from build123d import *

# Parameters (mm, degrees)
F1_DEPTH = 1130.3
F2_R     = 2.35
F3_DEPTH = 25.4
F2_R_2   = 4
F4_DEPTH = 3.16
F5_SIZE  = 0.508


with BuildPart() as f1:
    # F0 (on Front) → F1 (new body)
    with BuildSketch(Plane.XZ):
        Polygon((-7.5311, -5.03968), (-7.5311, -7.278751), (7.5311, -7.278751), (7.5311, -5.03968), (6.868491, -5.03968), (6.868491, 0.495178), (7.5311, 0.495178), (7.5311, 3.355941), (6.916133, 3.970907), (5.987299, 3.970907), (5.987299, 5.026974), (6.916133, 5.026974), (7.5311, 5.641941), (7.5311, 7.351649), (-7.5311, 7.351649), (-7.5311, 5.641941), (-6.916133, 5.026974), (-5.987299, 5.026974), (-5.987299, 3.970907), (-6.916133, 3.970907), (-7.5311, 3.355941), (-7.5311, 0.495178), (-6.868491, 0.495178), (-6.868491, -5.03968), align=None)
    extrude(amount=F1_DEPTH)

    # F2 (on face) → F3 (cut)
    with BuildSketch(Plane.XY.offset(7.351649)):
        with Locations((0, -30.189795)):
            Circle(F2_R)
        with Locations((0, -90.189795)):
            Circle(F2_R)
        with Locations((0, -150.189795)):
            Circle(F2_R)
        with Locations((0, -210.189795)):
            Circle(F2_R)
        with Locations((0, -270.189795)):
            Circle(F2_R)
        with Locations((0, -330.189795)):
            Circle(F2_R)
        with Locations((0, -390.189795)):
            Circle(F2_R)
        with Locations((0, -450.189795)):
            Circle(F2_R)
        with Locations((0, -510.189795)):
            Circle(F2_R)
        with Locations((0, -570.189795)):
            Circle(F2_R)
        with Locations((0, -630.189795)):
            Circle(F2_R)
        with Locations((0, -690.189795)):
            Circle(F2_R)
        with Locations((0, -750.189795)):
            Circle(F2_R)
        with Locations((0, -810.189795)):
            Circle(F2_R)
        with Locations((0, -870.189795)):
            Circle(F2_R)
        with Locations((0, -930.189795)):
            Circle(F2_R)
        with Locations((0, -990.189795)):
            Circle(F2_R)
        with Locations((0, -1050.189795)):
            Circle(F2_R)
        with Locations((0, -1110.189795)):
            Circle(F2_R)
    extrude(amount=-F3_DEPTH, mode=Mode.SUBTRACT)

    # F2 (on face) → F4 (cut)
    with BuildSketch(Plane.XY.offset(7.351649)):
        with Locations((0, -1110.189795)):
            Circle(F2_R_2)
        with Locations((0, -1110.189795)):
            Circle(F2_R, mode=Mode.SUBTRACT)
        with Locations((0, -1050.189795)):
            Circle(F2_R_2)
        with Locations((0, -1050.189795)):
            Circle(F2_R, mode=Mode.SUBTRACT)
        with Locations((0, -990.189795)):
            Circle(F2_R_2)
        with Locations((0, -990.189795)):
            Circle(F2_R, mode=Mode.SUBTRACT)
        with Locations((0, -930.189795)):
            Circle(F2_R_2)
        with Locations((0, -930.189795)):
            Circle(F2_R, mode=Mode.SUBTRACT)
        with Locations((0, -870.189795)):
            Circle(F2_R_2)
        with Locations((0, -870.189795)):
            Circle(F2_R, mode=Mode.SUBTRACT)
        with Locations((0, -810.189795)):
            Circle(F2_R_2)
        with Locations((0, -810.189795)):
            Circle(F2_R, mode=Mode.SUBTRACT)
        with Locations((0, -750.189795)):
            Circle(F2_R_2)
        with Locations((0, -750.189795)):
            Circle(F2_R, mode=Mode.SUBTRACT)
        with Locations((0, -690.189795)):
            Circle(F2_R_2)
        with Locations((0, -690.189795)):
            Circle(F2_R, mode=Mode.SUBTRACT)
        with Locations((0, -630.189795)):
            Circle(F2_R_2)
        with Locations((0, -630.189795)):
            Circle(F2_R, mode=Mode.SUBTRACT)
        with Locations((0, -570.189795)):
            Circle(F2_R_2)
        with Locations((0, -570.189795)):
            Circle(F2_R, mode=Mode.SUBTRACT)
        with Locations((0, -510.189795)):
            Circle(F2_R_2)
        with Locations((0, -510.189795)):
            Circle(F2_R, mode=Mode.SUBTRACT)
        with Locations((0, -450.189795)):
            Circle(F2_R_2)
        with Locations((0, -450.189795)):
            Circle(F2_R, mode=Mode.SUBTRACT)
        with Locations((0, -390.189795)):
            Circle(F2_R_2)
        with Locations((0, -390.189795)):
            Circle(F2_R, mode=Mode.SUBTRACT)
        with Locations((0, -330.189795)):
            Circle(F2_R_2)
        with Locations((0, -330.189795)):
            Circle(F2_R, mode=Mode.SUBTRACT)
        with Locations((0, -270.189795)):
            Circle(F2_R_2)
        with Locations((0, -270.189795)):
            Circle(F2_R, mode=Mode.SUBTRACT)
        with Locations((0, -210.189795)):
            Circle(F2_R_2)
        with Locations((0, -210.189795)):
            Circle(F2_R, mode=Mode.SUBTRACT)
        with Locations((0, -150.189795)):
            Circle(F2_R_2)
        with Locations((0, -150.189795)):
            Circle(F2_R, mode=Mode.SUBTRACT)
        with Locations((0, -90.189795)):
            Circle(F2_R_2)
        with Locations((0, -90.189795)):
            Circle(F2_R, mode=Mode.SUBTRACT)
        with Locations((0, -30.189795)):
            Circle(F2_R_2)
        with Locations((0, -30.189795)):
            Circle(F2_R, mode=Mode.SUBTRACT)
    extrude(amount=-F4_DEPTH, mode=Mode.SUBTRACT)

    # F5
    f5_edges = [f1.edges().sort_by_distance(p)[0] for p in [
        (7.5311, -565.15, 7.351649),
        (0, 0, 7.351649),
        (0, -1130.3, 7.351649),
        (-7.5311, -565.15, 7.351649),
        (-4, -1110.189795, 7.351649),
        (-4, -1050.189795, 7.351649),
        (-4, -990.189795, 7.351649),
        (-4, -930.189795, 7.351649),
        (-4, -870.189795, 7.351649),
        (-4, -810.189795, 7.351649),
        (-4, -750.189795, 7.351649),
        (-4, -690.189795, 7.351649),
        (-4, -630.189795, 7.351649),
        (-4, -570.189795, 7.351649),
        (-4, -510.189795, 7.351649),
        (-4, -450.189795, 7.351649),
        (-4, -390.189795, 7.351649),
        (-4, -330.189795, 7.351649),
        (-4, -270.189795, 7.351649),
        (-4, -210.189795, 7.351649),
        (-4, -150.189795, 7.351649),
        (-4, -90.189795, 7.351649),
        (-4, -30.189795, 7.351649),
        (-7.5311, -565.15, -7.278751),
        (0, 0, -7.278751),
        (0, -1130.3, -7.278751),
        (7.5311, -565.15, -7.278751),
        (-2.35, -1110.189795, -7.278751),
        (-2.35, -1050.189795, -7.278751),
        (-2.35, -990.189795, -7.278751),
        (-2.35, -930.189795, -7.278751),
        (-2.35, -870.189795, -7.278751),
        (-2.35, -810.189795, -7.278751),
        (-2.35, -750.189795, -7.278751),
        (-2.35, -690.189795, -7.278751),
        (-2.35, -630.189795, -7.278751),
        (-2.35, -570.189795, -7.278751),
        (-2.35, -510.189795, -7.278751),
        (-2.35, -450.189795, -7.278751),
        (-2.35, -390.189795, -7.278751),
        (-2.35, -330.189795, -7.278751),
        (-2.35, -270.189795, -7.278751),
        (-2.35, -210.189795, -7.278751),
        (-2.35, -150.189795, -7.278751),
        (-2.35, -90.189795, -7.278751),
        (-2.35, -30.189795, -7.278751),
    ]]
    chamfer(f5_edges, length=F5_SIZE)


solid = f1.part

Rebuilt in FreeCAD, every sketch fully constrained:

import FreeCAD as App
import Part
import Sketcher
Q = App.Units.Quantity


def edges_at(feature, points):
    """Names of the edges that pass closest to the given points."""
    edges = feature.Shape.Edges
    near = lambda p: min(range(len(edges)), key=lambda i: edges[i].distToShape(Part.Vertex(*p))[0])
    return sorted({f"Edge{near(p) + 1}" for p in points})

doc = App.newDocument("Part")
body = doc.addObject("PartDesign::Body", "Body")

sketch1 = body.newObject("Sketcher::SketchObject", "Sketch")
sketch1.AttachmentSupport = (doc.getObject("XZ_Plane"), [""])
sketch1.MapMode = "FlatFace"
sketch1.addGeometry([
    Part.LineSegment(App.Vector(-7.5311, -5.03968, 0), App.Vector(-7.5311, -7.278751, 0)),
    Part.LineSegment(App.Vector(-7.5311, -7.278751, 0), App.Vector(7.5311, -7.278751, 0)),
    Part.LineSegment(App.Vector(7.5311, -7.278751, 0), App.Vector(7.5311, -5.03968, 0)),
    Part.LineSegment(App.Vector(7.5311, -5.03968, 0), App.Vector(6.868491, -5.03968, 0)),
    Part.LineSegment(App.Vector(6.868491, -5.03968, 0), App.Vector(6.868491, 0.495178, 0)),
    Part.LineSegment(App.Vector(6.868491, 0.495178, 0), App.Vector(7.5311, 0.495178, 0)),
    Part.LineSegment(App.Vector(7.5311, 0.495178, 0), App.Vector(7.5311, 3.355941, 0)),
    Part.LineSegment(App.Vector(7.5311, 3.355941, 0), App.Vector(6.916133, 3.970907, 0)),
    Part.LineSegment(App.Vector(6.916133, 3.970907, 0), App.Vector(5.987299, 3.970907, 0)),
    Part.LineSegment(App.Vector(5.987299, 3.970907, 0), App.Vector(5.987299, 5.026974, 0)),
    Part.LineSegment(App.Vector(5.987299, 5.026974, 0), App.Vector(6.916133, 5.026974, 0)),
    Part.LineSegment(App.Vector(6.916133, 5.026974, 0), App.Vector(7.5311, 5.641941, 0)),
    Part.LineSegment(App.Vector(7.5311, 5.641941, 0), App.Vector(7.5311, 7.351649, 0)),
    Part.LineSegment(App.Vector(7.5311, 7.351649, 0), App.Vector(-7.5311, 7.351649, 0)),
    Part.LineSegment(App.Vector(-7.5311, 7.351649, 0), App.Vector(-7.5311, 5.641941, 0)),
    Part.LineSegment(App.Vector(-7.5311, 5.641941, 0), App.Vector(-6.916133, 5.026974, 0)),
    Part.LineSegment(App.Vector(-6.916133, 5.026974, 0), App.Vector(-5.987299, 5.026974, 0)),
    Part.LineSegment(App.Vector(-5.987299, 5.026974, 0), App.Vector(-5.987299, 3.970907, 0)),
    Part.LineSegment(App.Vector(-5.987299, 3.970907, 0), App.Vector(-6.916133, 3.970907, 0)),
    Part.LineSegment(App.Vector(-6.916133, 3.970907, 0), App.Vector(-7.5311, 3.355941, 0)),
    Part.LineSegment(App.Vector(-7.5311, 3.355941, 0), App.Vector(-7.5311, 0.495178, 0)),
    Part.LineSegment(App.Vector(-7.5311, 0.495178, 0), App.Vector(-6.868491, 0.495178, 0)),
    Part.LineSegment(App.Vector(-6.868491, 0.495178, 0), App.Vector(-6.868491, -5.03968, 0)),
    Part.LineSegment(App.Vector(-6.868491, -5.03968, 0), App.Vector(-7.5311, -5.03968, 0)),
], False)
sketch1.addConstraint([
    Sketcher.Constraint("Coincident", 0, 2, 1, 1),
    Sketcher.Constraint("Coincident", 1, 2, 2, 1),
    Sketcher.Constraint("Coincident", 2, 2, 3, 1),
    Sketcher.Constraint("Coincident", 3, 2, 4, 1),
    Sketcher.Constraint("Coincident", 4, 2, 5, 1),
    Sketcher.Constraint("Coincident", 5, 2, 6, 1),
    Sketcher.Constraint("Coincident", 6, 2, 7, 1),
    Sketcher.Constraint("Coincident", 7, 2, 8, 1),
    Sketcher.Constraint("Coincident", 8, 2, 9, 1),
    Sketcher.Constraint("Coincident", 9, 2, 10, 1),
    Sketcher.Constraint("Coincident", 10, 2, 11, 1),
    Sketcher.Constraint("Coincident", 11, 2, 12, 1),
    Sketcher.Constraint("Coincident", 12, 2, 13, 1),
    Sketcher.Constraint("Coincident", 13, 2, 14, 1),
    Sketcher.Constraint("Coincident", 14, 2, 15, 1),
    Sketcher.Constraint("Coincident", 15, 2, 16, 1),
    Sketcher.Constraint("Coincident", 16, 2, 17, 1),
    Sketcher.Constraint("Coincident", 17, 2, 18, 1),
    Sketcher.Constraint("Coincident", 18, 2, 19, 1),
    Sketcher.Constraint("Coincident", 19, 2, 20, 1),
    Sketcher.Constraint("Coincident", 20, 2, 21, 1),
    Sketcher.Constraint("Coincident", 21, 2, 22, 1),
    Sketcher.Constraint("Coincident", 22, 2, 23, 1),
    Sketcher.Constraint("Coincident", 23, 2, 0, 1),
    Sketcher.Constraint("Vertical", 0),
    Sketcher.Constraint("Horizontal", 1),
    Sketcher.Constraint("Vertical", 2),
    Sketcher.Constraint("Horizontal", 3),
    Sketcher.Constraint("Vertical", 4),
    Sketcher.Constraint("Horizontal", 5),
    Sketcher.Constraint("Vertical", 6),
    Sketcher.Constraint("Horizontal", 8),
    Sketcher.Constraint("Vertical", 9),
    Sketcher.Constraint("Horizontal", 10),
    Sketcher.Constraint("Vertical", 12),
    Sketcher.Constraint("Horizontal", 13),
    Sketcher.Constraint("Vertical", 14),
    Sketcher.Constraint("Horizontal", 16),
    Sketcher.Constraint("Vertical", 17),
    Sketcher.Constraint("Horizontal", 18),
    Sketcher.Constraint("Vertical", 20),
    Sketcher.Constraint("Horizontal", 21),
    Sketcher.Constraint("Vertical", 22),
    Sketcher.Constraint("Horizontal", 23),
    Sketcher.Constraint("Symmetric", 11, 2, 14, 2, -2),
    Sketcher.Constraint("Symmetric", 10, 2, 15, 2, -2),
    Sketcher.Constraint("Symmetric", 8, 2, 17, 2, -2),
    Sketcher.Constraint("Symmetric", 6, 2, 19, 2, -2),
    Sketcher.Constraint("Symmetric", 4, 2, 21, 2, -2),
    Sketcher.Constraint("Symmetric", 2, 2, 23, 2, -2),
    Sketcher.Constraint("Perpendicular", 7, 11),
    Sketcher.Constraint("Perpendicular", 11, 15),
    Sketcher.Constraint("Perpendicular", 15, 19),
    Sketcher.Constraint("Vertical", 2, 2, 5, 2),
    Sketcher.Constraint("Vertical", 7, 2, 10, 2),
    Sketcher.Constraint("Vertical", 6, 2, 11, 2),
    Sketcher.Constraint("DistanceX", 1, 1, 1, 2, Q("0.593 in")),
    Sketcher.Constraint("DistanceY", 6, 2, 11, 2, Q("0.09 in")),
    Sketcher.Constraint("DistanceY", 0, 2, 13, 2, Q("0.576 in")),
    Sketcher.Constraint("DistanceY", 7, 2, 12, 2, Q("0.1331001 in")),
    Sketcher.Constraint("DistanceX", 3, 2, 3, 1, Q("0.662609 mm")),
    Sketcher.Constraint("DistanceY", 0, 2, 0, 1, Q("2.239071 mm")),
    Sketcher.Constraint("DistanceX", -1, 1, 8, 2, Q("5.987299 mm")),
    Sketcher.Constraint("DistanceX", 8, 2, 8, 1, Q("0.928834 mm")),
    Sketcher.Constraint("DistanceY", 4, 1, 4, 2, Q("5.534858 mm")),
    Sketcher.Constraint("DistanceY", 0, 2, -1, 1, Q("7.278751 mm")),
])
pad1 = body.newObject("PartDesign::Pad", "Pad")
pad1.Profile = sketch1
pad1.Length = Q("44.5 in")

sketch2 = body.newObject("Sketcher::SketchObject", "Sketch001")
sketch2.AttachmentSupport = (doc.getObject("XY_Plane"), [""])
sketch2.MapMode = "FlatFace"
sketch2.AttachmentOffset = App.Placement(App.Vector(0, 0, 7.351649), App.Rotation())
sketch2.addGeometry([
    Part.Circle(App.Vector(0, -30.189795, 0), App.Vector(0, 0, 1), 2.35),
    Part.Circle(App.Vector(0, -90.189795, 0), App.Vector(0, 0, 1), 2.35),
    Part.Circle(App.Vector(0, -150.189795, 0), App.Vector(0, 0, 1), 2.35),
    Part.Circle(App.Vector(0, -210.189795, 0), App.Vector(0, 0, 1), 2.35),
    Part.Circle(App.Vector(0, -270.189795, 0), App.Vector(0, 0, 1), 2.35),
    Part.Circle(App.Vector(0, -330.189795, 0), App.Vector(0, 0, 1), 2.35),
    Part.Circle(App.Vector(0, -390.189795, 0), App.Vector(0, 0, 1), 2.35),
    Part.Circle(App.Vector(0, -450.189795, 0), App.Vector(0, 0, 1), 2.35),
    Part.Circle(App.Vector(0, -510.189795, 0), App.Vector(0, 0, 1), 2.35),
    Part.Circle(App.Vector(0, -570.189795, 0), App.Vector(0, 0, 1), 2.35),
    Part.Circle(App.Vector(0, -630.189795, 0), App.Vector(0, 0, 1), 2.35),
    Part.Circle(App.Vector(0, -690.189795, 0), App.Vector(0, 0, 1), 2.35),
    Part.Circle(App.Vector(0, -750.189795, 0), App.Vector(0, 0, 1), 2.35),
    Part.Circle(App.Vector(0, -810.189795, 0), App.Vector(0, 0, 1), 2.35),
    Part.Circle(App.Vector(0, -870.189795, 0), App.Vector(0, 0, 1), 2.35),
    Part.Circle(App.Vector(0, -930.189795, 0), App.Vector(0, 0, 1), 2.35),
    Part.Circle(App.Vector(0, -990.189795, 0), App.Vector(0, 0, 1), 2.35),
    Part.Circle(App.Vector(0, -1050.189795, 0), App.Vector(0, 0, 1), 2.35),
    Part.Circle(App.Vector(0, -1110.189795, 0), App.Vector(0, 0, 1), 2.35),
], False)
sketch2.addConstraint([
    Sketcher.Constraint("Equal", 0, 1),
    Sketcher.Constraint("Equal", 1, 2),
    Sketcher.Constraint("Equal", 2, 3),
    Sketcher.Constraint("Equal", 3, 4),
    Sketcher.Constraint("Equal", 4, 5),
    Sketcher.Constraint("Equal", 5, 6),
    Sketcher.Constraint("Equal", 6, 7),
    Sketcher.Constraint("Equal", 7, 8),
    Sketcher.Constraint("Equal", 8, 9),
    Sketcher.Constraint("Equal", 9, 10),
    Sketcher.Constraint("Equal", 10, 11),
    Sketcher.Constraint("Equal", 11, 12),
    Sketcher.Constraint("Equal", 12, 13),
    Sketcher.Constraint("Equal", 13, 14),
    Sketcher.Constraint("Equal", 14, 15),
    Sketcher.Constraint("Equal", 15, 16),
    Sketcher.Constraint("Equal", 16, 17),
    Sketcher.Constraint("Equal", 17, 18),
    Sketcher.Constraint("PointOnObject", 0, 3, -2),
    Sketcher.Constraint("PointOnObject", 1, 3, -2),
    Sketcher.Constraint("PointOnObject", 2, 3, -2),
    Sketcher.Constraint("PointOnObject", 3, 3, -2),
    Sketcher.Constraint("PointOnObject", 4, 3, -2),
    Sketcher.Constraint("PointOnObject", 5, 3, -2),
    Sketcher.Constraint("PointOnObject", 6, 3, -2),
    Sketcher.Constraint("PointOnObject", 7, 3, -2),
    Sketcher.Constraint("PointOnObject", 8, 3, -2),
    Sketcher.Constraint("PointOnObject", 9, 3, -2),
    Sketcher.Constraint("PointOnObject", 10, 3, -2),
    Sketcher.Constraint("PointOnObject", 11, 3, -2),
    Sketcher.Constraint("PointOnObject", 12, 3, -2),
    Sketcher.Constraint("PointOnObject", 13, 3, -2),
    Sketcher.Constraint("PointOnObject", 14, 3, -2),
    Sketcher.Constraint("PointOnObject", 15, 3, -2),
    Sketcher.Constraint("PointOnObject", 16, 3, -2),
    Sketcher.Constraint("PointOnObject", 17, 3, -2),
    Sketcher.Constraint("PointOnObject", 18, 3, -2),
    Sketcher.Constraint("Diameter", 0, Q("4.7 mm")),
    Sketcher.Constraint("DistanceY", 1, 3, 0, 3, Q("60 mm")),
    Sketcher.Constraint("DistanceY", 2, 3, 1, 3, Q("60 mm")),
    Sketcher.Constraint("DistanceY", 3, 3, 2, 3, Q("60 mm")),
    Sketcher.Constraint("DistanceY", 4, 3, 3, 3, Q("60 mm")),
    Sketcher.Constraint("DistanceY", 5, 3, 4, 3, Q("60 mm")),
    Sketcher.Constraint("DistanceY", 6, 3, 5, 3, Q("60 mm")),
    Sketcher.Constraint("DistanceY", 7, 3, 6, 3, Q("60 mm")),
    Sketcher.Constraint("DistanceY", 8, 3, 7, 3, Q("60 mm")),
    Sketcher.Constraint("DistanceY", 9, 3, 8, 3, Q("60 mm")),
    Sketcher.Constraint("DistanceY", 10, 3, 9, 3, Q("60 mm")),
    Sketcher.Constraint("DistanceY", 11, 3, 10, 3, Q("60 mm")),
    Sketcher.Constraint("DistanceY", 12, 3, 11, 3, Q("60 mm")),
    Sketcher.Constraint("DistanceY", 13, 3, 12, 3, Q("60 mm")),
    Sketcher.Constraint("DistanceY", 14, 3, 13, 3, Q("60 mm")),
    Sketcher.Constraint("DistanceY", 15, 3, 14, 3, Q("60 mm")),
    Sketcher.Constraint("DistanceY", 16, 3, 15, 3, Q("60 mm")),
    Sketcher.Constraint("DistanceY", 17, 3, 16, 3, Q("60 mm")),
    Sketcher.Constraint("DistanceY", 18, 3, 17, 3, Q("60 mm")),
    Sketcher.Constraint("DistanceY", 0, 3, -1, 1, Q("30.189795 mm")),
])
pocket1 = body.newObject("PartDesign::Pocket", "Pocket")
pocket1.Profile = sketch2
pocket1.Length = Q("1 in")

sketch3 = body.newObject("Sketcher::SketchObject", "Sketch002")
sketch3.AttachmentSupport = (doc.getObject("XY_Plane"), [""])
sketch3.MapMode = "FlatFace"
sketch3.AttachmentOffset = App.Placement(App.Vector(0, 0, 7.351649), App.Rotation())
sketch3.addGeometry([
    Part.Circle(App.Vector(0, -1110.189795, 0), App.Vector(0, 0, 1), 4),
    Part.Circle(App.Vector(0, -1110.189795, 0), App.Vector(0, 0, 1), 2.35),
    Part.Circle(App.Vector(0, -1050.189795, 0), App.Vector(0, 0, 1), 4),
    Part.Circle(App.Vector(0, -1050.189795, 0), App.Vector(0, 0, 1), 2.35),
    Part.Circle(App.Vector(0, -990.189795, 0), App.Vector(0, 0, 1), 4),
    Part.Circle(App.Vector(0, -990.189795, 0), App.Vector(0, 0, 1), 2.35),
    Part.Circle(App.Vector(0, -930.189795, 0), App.Vector(0, 0, 1), 4),
    Part.Circle(App.Vector(0, -930.189795, 0), App.Vector(0, 0, 1), 2.35),
    Part.Circle(App.Vector(0, -870.189795, 0), App.Vector(0, 0, 1), 4),
    Part.Circle(App.Vector(0, -870.189795, 0), App.Vector(0, 0, 1), 2.35),
    Part.Circle(App.Vector(0, -810.189795, 0), App.Vector(0, 0, 1), 4),
    Part.Circle(App.Vector(0, -810.189795, 0), App.Vector(0, 0, 1), 2.35),
    Part.Circle(App.Vector(0, -750.189795, 0), App.Vector(0, 0, 1), 4),
    Part.Circle(App.Vector(0, -750.189795, 0), App.Vector(0, 0, 1), 2.35),
    Part.Circle(App.Vector(0, -690.189795, 0), App.Vector(0, 0, 1), 4),
    Part.Circle(App.Vector(0, -690.189795, 0), App.Vector(0, 0, 1), 2.35),
    Part.Circle(App.Vector(0, -630.189795, 0), App.Vector(0, 0, 1), 4),
    Part.Circle(App.Vector(0, -630.189795, 0), App.Vector(0, 0, 1), 2.35),
    Part.Circle(App.Vector(0, -570.189795, 0), App.Vector(0, 0, 1), 4),
    Part.Circle(App.Vector(0, -570.189795, 0), App.Vector(0, 0, 1), 2.35),
    Part.Circle(App.Vector(0, -510.189795, 0), App.Vector(0, 0, 1), 4),
    Part.Circle(App.Vector(0, -510.189795, 0), App.Vector(0, 0, 1), 2.35),
    Part.Circle(App.Vector(0, -450.189795, 0), App.Vector(0, 0, 1), 4),
    Part.Circle(App.Vector(0, -450.189795, 0), App.Vector(0, 0, 1), 2.35),
    Part.Circle(App.Vector(0, -390.189795, 0), App.Vector(0, 0, 1), 4),
    Part.Circle(App.Vector(0, -390.189795, 0), App.Vector(0, 0, 1), 2.35),
    Part.Circle(App.Vector(0, -330.189795, 0), App.Vector(0, 0, 1), 4),
    Part.Circle(App.Vector(0, -330.189795, 0), App.Vector(0, 0, 1), 2.35),
    Part.Circle(App.Vector(0, -270.189795, 0), App.Vector(0, 0, 1), 4),
    Part.Circle(App.Vector(0, -270.189795, 0), App.Vector(0, 0, 1), 2.35),
    Part.Circle(App.Vector(0, -210.189795, 0), App.Vector(0, 0, 1), 4),
    Part.Circle(App.Vector(0, -210.189795, 0), App.Vector(0, 0, 1), 2.35),
    Part.Circle(App.Vector(0, -150.189795, 0), App.Vector(0, 0, 1), 4),
    Part.Circle(App.Vector(0, -150.189795, 0), App.Vector(0, 0, 1), 2.35),
    Part.Circle(App.Vector(0, -90.189795, 0), App.Vector(0, 0, 1), 4),
    Part.Circle(App.Vector(0, -90.189795, 0), App.Vector(0, 0, 1), 2.35),
    Part.Circle(App.Vector(0, -30.189795, 0), App.Vector(0, 0, 1), 4),
    Part.Circle(App.Vector(0, -30.189795, 0), App.Vector(0, 0, 1), 2.35),
], False)
sketch3.addConstraint([
    Sketcher.Constraint("Coincident", 1, 3, 0, 3),
    Sketcher.Constraint("Coincident", 3, 3, 2, 3),
    Sketcher.Constraint("Coincident", 5, 3, 4, 3),
    Sketcher.Constraint("Coincident", 7, 3, 6, 3),
    Sketcher.Constraint("Coincident", 9, 3, 8, 3),
    Sketcher.Constraint("Coincident", 11, 3, 10, 3),
    Sketcher.Constraint("Coincident", 13, 3, 12, 3),
    Sketcher.Constraint("Coincident", 15, 3, 14, 3),
    Sketcher.Constraint("Coincident", 17, 3, 16, 3),
    Sketcher.Constraint("Coincident", 19, 3, 18, 3),
    Sketcher.Constraint("Coincident", 21, 3, 20, 3),
    Sketcher.Constraint("Coincident", 23, 3, 22, 3),
    Sketcher.Constraint("Coincident", 25, 3, 24, 3),
    Sketcher.Constraint("Coincident", 27, 3, 26, 3),
    Sketcher.Constraint("Coincident", 29, 3, 28, 3),
    Sketcher.Constraint("Coincident", 31, 3, 30, 3),
    Sketcher.Constraint("Coincident", 33, 3, 32, 3),
    Sketcher.Constraint("Coincident", 35, 3, 34, 3),
    Sketcher.Constraint("Coincident", 37, 3, 36, 3),
    Sketcher.Constraint("Equal", 0, 2),
    Sketcher.Constraint("Equal", 1, 3),
    Sketcher.Constraint("Equal", 2, 4),
    Sketcher.Constraint("Equal", 3, 5),
    Sketcher.Constraint("Equal", 4, 6),
    Sketcher.Constraint("Equal", 5, 7),
    Sketcher.Constraint("Equal", 6, 8),
    Sketcher.Constraint("Equal", 7, 9),
    Sketcher.Constraint("Equal", 8, 10),
    Sketcher.Constraint("Equal", 9, 11),
    Sketcher.Constraint("Equal", 10, 12),
    Sketcher.Constraint("Equal", 11, 13),
    Sketcher.Constraint("Equal", 12, 14),
    Sketcher.Constraint("Equal", 13, 15),
    Sketcher.Constraint("Equal", 14, 16),
    Sketcher.Constraint("Equal", 15, 17),
    Sketcher.Constraint("Equal", 16, 18),
    Sketcher.Constraint("Equal", 17, 19),
    Sketcher.Constraint("Equal", 18, 20),
    Sketcher.Constraint("Equal", 19, 21),
    Sketcher.Constraint("Equal", 20, 22),
    Sketcher.Constraint("Equal", 21, 23),
    Sketcher.Constraint("Equal", 22, 24),
    Sketcher.Constraint("Equal", 23, 25),
    Sketcher.Constraint("Equal", 24, 26),
    Sketcher.Constraint("Equal", 25, 27),
    Sketcher.Constraint("Equal", 26, 28),
    Sketcher.Constraint("Equal", 27, 29),
    Sketcher.Constraint("Equal", 28, 30),
    Sketcher.Constraint("Equal", 29, 31),
    Sketcher.Constraint("Equal", 30, 32),
    Sketcher.Constraint("Equal", 31, 33),
    Sketcher.Constraint("Equal", 32, 34),
    Sketcher.Constraint("Equal", 33, 35),
    Sketcher.Constraint("Equal", 34, 36),
    Sketcher.Constraint("Equal", 35, 37),
    Sketcher.Constraint("PointOnObject", 0, 3, -2),
    Sketcher.Constraint("PointOnObject", 2, 3, -2),
    Sketcher.Constraint("PointOnObject", 4, 3, -2),
    Sketcher.Constraint("PointOnObject", 6, 3, -2),
    Sketcher.Constraint("PointOnObject", 8, 3, -2),
    Sketcher.Constraint("PointOnObject", 10, 3, -2),
    Sketcher.Constraint("PointOnObject", 12, 3, -2),
    Sketcher.Constraint("PointOnObject", 14, 3, -2),
    Sketcher.Constraint("PointOnObject", 16, 3, -2),
    Sketcher.Constraint("PointOnObject", 18, 3, -2),
    Sketcher.Constraint("PointOnObject", 20, 3, -2),
    Sketcher.Constraint("PointOnObject", 22, 3, -2),
    Sketcher.Constraint("PointOnObject", 24, 3, -2),
    Sketcher.Constraint("PointOnObject", 26, 3, -2),
    Sketcher.Constraint("PointOnObject", 28, 3, -2),
    Sketcher.Constraint("PointOnObject", 30, 3, -2),
    Sketcher.Constraint("PointOnObject", 32, 3, -2),
    Sketcher.Constraint("PointOnObject", 34, 3, -2),
    Sketcher.Constraint("PointOnObject", 36, 3, -2),
    Sketcher.Constraint("Diameter", 0, Q("8 mm")),
    Sketcher.Constraint("Diameter", 1, Q("4.7 mm")),
    Sketcher.Constraint("DistanceY", 0, 3, 2, 3, Q("60 mm")),
    Sketcher.Constraint("DistanceY", 2, 3, 4, 3, Q("60 mm")),
    Sketcher.Constraint("DistanceY", 4, 3, 6, 3, Q("60 mm")),
    Sketcher.Constraint("DistanceY", 6, 3, 8, 3, Q("60 mm")),
    Sketcher.Constraint("DistanceY", 8, 3, 10, 3, Q("60 mm")),
    Sketcher.Constraint("DistanceY", 10, 3, 12, 3, Q("60 mm")),
    Sketcher.Constraint("DistanceY", 12, 3, 14, 3, Q("60 mm")),
    Sketcher.Constraint("DistanceY", 14, 3, 16, 3, Q("60 mm")),
    Sketcher.Constraint("DistanceY", 16, 3, 18, 3, Q("60 mm")),
    Sketcher.Constraint("DistanceY", 18, 3, 20, 3, Q("60 mm")),
    Sketcher.Constraint("DistanceY", 20, 3, 22, 3, Q("60 mm")),
    Sketcher.Constraint("DistanceY", 22, 3, 24, 3, Q("60 mm")),
    Sketcher.Constraint("DistanceY", 24, 3, 26, 3, Q("60 mm")),
    Sketcher.Constraint("DistanceY", 26, 3, 28, 3, Q("60 mm")),
    Sketcher.Constraint("DistanceY", 28, 3, 30, 3, Q("60 mm")),
    Sketcher.Constraint("DistanceY", 30, 3, 32, 3, Q("60 mm")),
    Sketcher.Constraint("DistanceY", 32, 3, 34, 3, Q("60 mm")),
    Sketcher.Constraint("DistanceY", 34, 3, 36, 3, Q("60 mm")),
    Sketcher.Constraint("DistanceY", 0, 3, -1, 1, Q("1110.189795 mm")),
])
pocket2 = body.newObject("PartDesign::Pocket", "Pocket001")
pocket2.Profile = sketch3
pocket2.Length = 3.16
doc.recompute()

chamfer = body.newObject("PartDesign::Chamfer", "Chamfer")
chamfer.Base = (pocket2, edges_at(pocket2, [
    (7.531, -565.15, 7.352),
    (0, 0, 7.352),
    (0, -1130.3, 7.352),
    (-7.531, -565.15, 7.352),
    (-4, -1110.19, 7.352),
    (-4, -1050.19, 7.352),
    (-4, -990.19, 7.352),
    (-4, -930.19, 7.352),
    (-4, -870.19, 7.352),
    (-4, -810.19, 7.352),
    (-4, -750.19, 7.352),
    (-4, -690.19, 7.352),
    (-4, -630.19, 7.352),
    (-4, -570.19, 7.352),
    (-4, -510.19, 7.352),
    (-4, -450.19, 7.352),
    (-4, -390.19, 7.352),
    (-4, -330.19, 7.352),
    (-4, -270.19, 7.352),
    (-4, -210.19, 7.352),
    (-4, -150.19, 7.352),
    (-4, -90.19, 7.352),
    (-4, -30.19, 7.352),
    (-7.531, -565.15, -7.279),
    (0, 0, -7.279),
    (0, -1130.3, -7.279),
    (7.531, -565.15, -7.279),
    (-2.35, -1110.19, -7.279),
    (-2.35, -1050.19, -7.279),
    (-2.35, -990.19, -7.279),
    (-2.35, -930.19, -7.279),
    (-2.35, -870.19, -7.279),
    (-2.35, -810.19, -7.279),
    (-2.35, -750.19, -7.279),
    (-2.35, -690.19, -7.279),
    (-2.35, -630.19, -7.279),
    (-2.35, -570.19, -7.279),
    (-2.35, -510.19, -7.279),
    (-2.35, -450.19, -7.279),
    (-2.35, -390.19, -7.279),
    (-2.35, -330.19, -7.279),
    (-2.35, -270.19, -7.279),
    (-2.35, -210.19, -7.279),
    (-2.35, -150.19, -7.279),
    (-2.35, -90.19, -7.279),
    (-2.35, -30.19, -7.279),
]))
chamfer.Size = Q("0.02 in")

doc.recompute()
